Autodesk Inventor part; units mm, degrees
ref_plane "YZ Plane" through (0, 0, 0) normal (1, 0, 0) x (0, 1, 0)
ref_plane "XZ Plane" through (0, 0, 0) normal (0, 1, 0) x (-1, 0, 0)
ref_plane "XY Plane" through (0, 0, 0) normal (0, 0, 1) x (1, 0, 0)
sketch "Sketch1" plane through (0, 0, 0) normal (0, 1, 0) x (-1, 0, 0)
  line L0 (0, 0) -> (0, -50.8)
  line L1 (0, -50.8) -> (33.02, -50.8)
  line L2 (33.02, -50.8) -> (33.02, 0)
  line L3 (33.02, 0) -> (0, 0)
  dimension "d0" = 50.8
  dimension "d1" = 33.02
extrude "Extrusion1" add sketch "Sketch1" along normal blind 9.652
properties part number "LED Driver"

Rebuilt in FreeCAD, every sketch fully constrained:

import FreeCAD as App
import Part
import Sketcher

V = App.Vector
Q = App.Units.Quantity

doc = App.newDocument("Part")
body = doc.addObject("PartDesign::Body", "Body")

sketch1 = body.newObject("Sketcher::SketchObject", "Sketch")
sketch1.AttachmentSupport = (doc.getObject("XZ_Plane"), [""])
sketch1.MapMode = "FlatFace"
sketch1.addGeometry([
    Part.LineSegment(V(-33.02, 0, 0), V(0, 0, 0)),
    Part.LineSegment(V(0, 0, 0), V(0, -50.8, 0)),
    Part.LineSegment(V(0, -50.8, 0), V(-33.02, -50.8, 0)),
    Part.LineSegment(V(-33.02, -50.8, 0), V(-33.02, 0, 0)),
], False)
sketch1.addConstraint([
    Sketcher.Constraint("Coincident", 0, 2, 1, 1),
    Sketcher.Constraint("Coincident", 1, 2, 2, 1),
    Sketcher.Constraint("Coincident", 2, 2, 3, 1),
    Sketcher.Constraint("Coincident", 3, 2, 0, 1),
    Sketcher.Constraint("Horizontal", 0),
    Sketcher.Constraint("Vertical", 1),
    Sketcher.Constraint("Horizontal", 2),
    Sketcher.Constraint("Vertical", 3),
    Sketcher.Constraint("Coincident", 0, 2, -1, 1),
    Sketcher.Constraint("DistanceY", 1, 2, 1, 1, Q("2 in")),
    Sketcher.Constraint("DistanceX", 0, 1, 0, 2, Q("1.3 in")),
])
pad1 = body.newObject("PartDesign::Pad", "Pad")
pad1.Profile = sketch1
pad1.Length = Q("0.38 in")
pad1.Reversed = True

doc.recompute()
